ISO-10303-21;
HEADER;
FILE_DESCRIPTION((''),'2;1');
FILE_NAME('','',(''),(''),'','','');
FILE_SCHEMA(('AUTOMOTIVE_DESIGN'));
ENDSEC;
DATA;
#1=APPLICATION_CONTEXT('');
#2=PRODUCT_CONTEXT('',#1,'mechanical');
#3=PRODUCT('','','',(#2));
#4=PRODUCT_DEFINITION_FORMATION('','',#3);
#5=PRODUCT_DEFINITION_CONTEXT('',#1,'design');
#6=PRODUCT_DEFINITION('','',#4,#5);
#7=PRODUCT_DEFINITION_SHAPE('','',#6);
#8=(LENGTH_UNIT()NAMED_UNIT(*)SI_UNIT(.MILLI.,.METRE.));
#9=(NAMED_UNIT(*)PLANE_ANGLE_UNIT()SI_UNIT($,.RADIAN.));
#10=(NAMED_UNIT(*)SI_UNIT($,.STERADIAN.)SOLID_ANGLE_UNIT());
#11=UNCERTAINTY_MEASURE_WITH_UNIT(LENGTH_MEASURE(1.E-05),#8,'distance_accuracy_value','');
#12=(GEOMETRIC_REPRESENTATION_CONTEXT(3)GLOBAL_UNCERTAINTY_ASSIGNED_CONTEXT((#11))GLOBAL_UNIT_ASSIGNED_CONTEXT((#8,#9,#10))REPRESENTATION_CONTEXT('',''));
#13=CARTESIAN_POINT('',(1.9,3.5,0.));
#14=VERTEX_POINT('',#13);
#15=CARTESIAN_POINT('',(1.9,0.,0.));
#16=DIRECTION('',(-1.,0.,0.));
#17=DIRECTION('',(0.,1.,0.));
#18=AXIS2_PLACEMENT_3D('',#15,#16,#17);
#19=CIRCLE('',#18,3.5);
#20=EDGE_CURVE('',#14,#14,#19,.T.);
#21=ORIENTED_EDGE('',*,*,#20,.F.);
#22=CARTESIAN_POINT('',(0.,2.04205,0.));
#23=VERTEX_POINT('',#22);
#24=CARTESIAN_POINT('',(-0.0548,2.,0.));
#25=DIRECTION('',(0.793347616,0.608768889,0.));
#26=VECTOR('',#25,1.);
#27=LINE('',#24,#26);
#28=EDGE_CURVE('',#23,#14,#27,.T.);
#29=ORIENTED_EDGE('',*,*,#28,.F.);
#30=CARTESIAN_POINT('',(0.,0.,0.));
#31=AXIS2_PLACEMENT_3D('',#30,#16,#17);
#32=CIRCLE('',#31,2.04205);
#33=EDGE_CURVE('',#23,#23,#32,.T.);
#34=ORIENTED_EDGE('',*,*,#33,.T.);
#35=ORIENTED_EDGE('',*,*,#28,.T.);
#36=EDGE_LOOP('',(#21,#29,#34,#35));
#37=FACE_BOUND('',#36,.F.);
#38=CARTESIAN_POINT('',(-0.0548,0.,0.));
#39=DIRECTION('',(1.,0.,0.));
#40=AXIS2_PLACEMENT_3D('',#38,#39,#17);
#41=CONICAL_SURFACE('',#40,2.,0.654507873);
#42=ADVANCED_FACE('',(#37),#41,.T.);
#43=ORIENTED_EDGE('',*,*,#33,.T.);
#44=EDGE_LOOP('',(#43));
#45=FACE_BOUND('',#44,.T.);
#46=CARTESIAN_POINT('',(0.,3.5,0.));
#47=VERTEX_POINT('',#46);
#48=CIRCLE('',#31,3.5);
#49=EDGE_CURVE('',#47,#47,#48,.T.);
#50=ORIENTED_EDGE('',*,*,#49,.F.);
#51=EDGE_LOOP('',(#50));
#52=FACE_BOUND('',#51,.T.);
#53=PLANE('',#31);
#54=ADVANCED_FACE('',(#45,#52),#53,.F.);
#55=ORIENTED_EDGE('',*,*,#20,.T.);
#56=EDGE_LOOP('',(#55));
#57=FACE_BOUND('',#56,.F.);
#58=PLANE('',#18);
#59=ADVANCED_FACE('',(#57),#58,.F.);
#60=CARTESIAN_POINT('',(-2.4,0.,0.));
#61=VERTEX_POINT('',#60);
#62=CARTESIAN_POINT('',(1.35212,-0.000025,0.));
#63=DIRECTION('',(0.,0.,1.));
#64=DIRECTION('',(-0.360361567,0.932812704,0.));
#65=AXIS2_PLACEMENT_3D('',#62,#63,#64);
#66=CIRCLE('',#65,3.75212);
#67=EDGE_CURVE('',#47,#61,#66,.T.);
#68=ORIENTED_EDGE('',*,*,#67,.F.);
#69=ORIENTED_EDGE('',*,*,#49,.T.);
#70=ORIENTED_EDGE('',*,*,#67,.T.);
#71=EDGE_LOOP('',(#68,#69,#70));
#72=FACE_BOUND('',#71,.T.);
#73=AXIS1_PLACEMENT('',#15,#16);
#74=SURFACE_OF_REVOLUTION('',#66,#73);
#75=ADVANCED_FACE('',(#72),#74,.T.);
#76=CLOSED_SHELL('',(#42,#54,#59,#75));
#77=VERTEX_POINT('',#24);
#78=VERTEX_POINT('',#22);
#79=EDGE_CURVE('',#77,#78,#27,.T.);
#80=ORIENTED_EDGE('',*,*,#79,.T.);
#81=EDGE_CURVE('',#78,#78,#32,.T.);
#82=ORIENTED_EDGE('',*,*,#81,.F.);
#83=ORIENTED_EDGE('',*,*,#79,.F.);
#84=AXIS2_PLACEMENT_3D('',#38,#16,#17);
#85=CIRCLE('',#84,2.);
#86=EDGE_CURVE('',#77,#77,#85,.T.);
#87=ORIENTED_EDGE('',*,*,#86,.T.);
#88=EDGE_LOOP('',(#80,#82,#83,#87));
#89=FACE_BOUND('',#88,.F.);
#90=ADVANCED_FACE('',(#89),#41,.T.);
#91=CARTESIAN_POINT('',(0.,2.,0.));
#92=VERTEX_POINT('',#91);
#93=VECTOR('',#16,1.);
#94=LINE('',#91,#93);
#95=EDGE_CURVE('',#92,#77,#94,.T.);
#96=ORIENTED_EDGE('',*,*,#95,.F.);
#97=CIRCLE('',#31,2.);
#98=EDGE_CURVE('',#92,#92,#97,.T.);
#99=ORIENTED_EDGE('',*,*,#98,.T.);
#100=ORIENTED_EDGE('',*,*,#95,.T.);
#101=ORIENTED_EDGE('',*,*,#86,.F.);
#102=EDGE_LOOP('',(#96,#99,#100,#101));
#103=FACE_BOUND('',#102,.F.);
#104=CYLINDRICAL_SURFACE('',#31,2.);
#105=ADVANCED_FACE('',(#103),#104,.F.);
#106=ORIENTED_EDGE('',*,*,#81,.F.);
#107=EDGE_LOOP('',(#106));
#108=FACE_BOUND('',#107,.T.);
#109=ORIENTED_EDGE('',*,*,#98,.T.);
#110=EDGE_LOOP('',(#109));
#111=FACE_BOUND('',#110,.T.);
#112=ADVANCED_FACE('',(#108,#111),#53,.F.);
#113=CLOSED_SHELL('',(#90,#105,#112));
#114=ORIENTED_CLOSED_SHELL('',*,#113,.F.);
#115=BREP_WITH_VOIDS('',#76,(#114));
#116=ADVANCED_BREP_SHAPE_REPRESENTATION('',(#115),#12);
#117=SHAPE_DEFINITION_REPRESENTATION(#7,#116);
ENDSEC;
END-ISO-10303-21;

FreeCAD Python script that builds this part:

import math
import FreeCAD as App
import Part
import Sketcher
from FreeCAD import Vector
Q = App.Units.Quantity


def add_polygon(sketch, points):
    """Adds a closed chain of lines whose ends are joined by coincident constraints."""
    first, n = sketch.GeometryCount, len(points)
    for a, b in zip(points, points[1:] + points[:1]):
        sketch.addGeometry(Part.LineSegment(App.Vector(*a, 0), App.Vector(*b, 0)), False)
    for i in range(n):
        sketch.addConstraint(Sketcher.Constraint("Coincident", first + i, 2, first + (i + 1) % n, 1))

doc = App.newDocument("Part")
body = doc.addObject("PartDesign::Body", "Body")

# Sketch on XY plane
sketch1 = body.newObject("Sketcher::SketchObject", "Sketch")
sketch1.AttachmentSupport = (doc.getObject("XY_Plane"), [""])
sketch1.MapMode = "FlatFace"
sketch1.addGeometry(Part.LineSegment(Vector(1.9, 3.5, 0), Vector(0, 2.04205, 0)), False)  # 0
sketch1.addGeometry(Part.LineSegment(Vector(0, 2.04205, 0), Vector(0, 3.5, 0)), False)  # 1
sketch1.addGeometry(Part.ArcOfCircle(Part.Circle(Vector(1.3521, 0, 0), Vector(0, 0, 1), 3.752089), math.radians(111.122259), math.radians(180)), False)  # 2
sketch1.addGeometry(Part.LineSegment(Vector(-2.4, 0, 0), Vector(1.9, 0, 0)), False)  # 3
sketch1.addGeometry(Part.LineSegment(Vector(1.9, 0, 0), Vector(1.9, 3.5, 0)), False)  # 4
add_polygon(sketch1, [(0, 2.04205), (0, 2), (-0.0548, 2)])  # lines 5-7
sketch1.addConstraint(Sketcher.Constraint("Coincident", 0, 2, 1, 1))
sketch1.addConstraint(Sketcher.Constraint("Coincident", 1, 2, 2, 1))
sketch1.addConstraint(Sketcher.Constraint("Coincident", 2, 2, 3, 1))
sketch1.addConstraint(Sketcher.Constraint("Coincident", 3, 2, 4, 1))
sketch1.addConstraint(Sketcher.Constraint("Coincident", 4, 2, 0, 1))
sketch1.addConstraint(Sketcher.Constraint("Vertical", 1))
sketch1.addConstraint(Sketcher.Constraint("Horizontal", 3))
sketch1.addConstraint(Sketcher.Constraint("Vertical", 4))
sketch1.addConstraint(Sketcher.Constraint("Vertical", 5))
sketch1.addConstraint(Sketcher.Constraint("Horizontal", 6))
sketch1.addConstraint(Sketcher.Constraint("Coincident", 7, 2, 0, 2))
sketch1.addConstraint(Sketcher.Constraint("PointOnObject", 2, 3, -1))
sketch1.addConstraint(Sketcher.Constraint("PointOnObject", 0, 2, -2))
sketch1.addConstraint(Sketcher.Constraint("PointOnObject", 2, 2, -1))
sketch1.addConstraint(Sketcher.Constraint("Parallel", 0, 7))
sketch1.addConstraint(Sketcher.Constraint("Horizontal", 1, 2, 4, 2))
sketch1.addConstraint(Sketcher.Constraint("Angle", 7, Q("37.5005 deg")))
sketch1.addConstraint(Sketcher.Constraint("DistanceX", 2, 2, -1, 1, 2.4))
sketch1.addConstraint(Sketcher.Constraint("DistanceX", -1, 1, 3, 2, 1.9))
sketch1.addConstraint(Sketcher.Constraint("DistanceY", 4, 1, 4, 2, 3.5))
sketch1.addConstraint(Sketcher.Constraint("DistanceY", -1, 1, 5, 2, 2.0))
revolution = body.newObject("PartDesign::Revolution", "Revolution")
revolution.Profile = sketch1
revolution.ReferenceAxis = (sketch1, ["H_Axis"])
revolution.Angle = 360

doc.recompute()
